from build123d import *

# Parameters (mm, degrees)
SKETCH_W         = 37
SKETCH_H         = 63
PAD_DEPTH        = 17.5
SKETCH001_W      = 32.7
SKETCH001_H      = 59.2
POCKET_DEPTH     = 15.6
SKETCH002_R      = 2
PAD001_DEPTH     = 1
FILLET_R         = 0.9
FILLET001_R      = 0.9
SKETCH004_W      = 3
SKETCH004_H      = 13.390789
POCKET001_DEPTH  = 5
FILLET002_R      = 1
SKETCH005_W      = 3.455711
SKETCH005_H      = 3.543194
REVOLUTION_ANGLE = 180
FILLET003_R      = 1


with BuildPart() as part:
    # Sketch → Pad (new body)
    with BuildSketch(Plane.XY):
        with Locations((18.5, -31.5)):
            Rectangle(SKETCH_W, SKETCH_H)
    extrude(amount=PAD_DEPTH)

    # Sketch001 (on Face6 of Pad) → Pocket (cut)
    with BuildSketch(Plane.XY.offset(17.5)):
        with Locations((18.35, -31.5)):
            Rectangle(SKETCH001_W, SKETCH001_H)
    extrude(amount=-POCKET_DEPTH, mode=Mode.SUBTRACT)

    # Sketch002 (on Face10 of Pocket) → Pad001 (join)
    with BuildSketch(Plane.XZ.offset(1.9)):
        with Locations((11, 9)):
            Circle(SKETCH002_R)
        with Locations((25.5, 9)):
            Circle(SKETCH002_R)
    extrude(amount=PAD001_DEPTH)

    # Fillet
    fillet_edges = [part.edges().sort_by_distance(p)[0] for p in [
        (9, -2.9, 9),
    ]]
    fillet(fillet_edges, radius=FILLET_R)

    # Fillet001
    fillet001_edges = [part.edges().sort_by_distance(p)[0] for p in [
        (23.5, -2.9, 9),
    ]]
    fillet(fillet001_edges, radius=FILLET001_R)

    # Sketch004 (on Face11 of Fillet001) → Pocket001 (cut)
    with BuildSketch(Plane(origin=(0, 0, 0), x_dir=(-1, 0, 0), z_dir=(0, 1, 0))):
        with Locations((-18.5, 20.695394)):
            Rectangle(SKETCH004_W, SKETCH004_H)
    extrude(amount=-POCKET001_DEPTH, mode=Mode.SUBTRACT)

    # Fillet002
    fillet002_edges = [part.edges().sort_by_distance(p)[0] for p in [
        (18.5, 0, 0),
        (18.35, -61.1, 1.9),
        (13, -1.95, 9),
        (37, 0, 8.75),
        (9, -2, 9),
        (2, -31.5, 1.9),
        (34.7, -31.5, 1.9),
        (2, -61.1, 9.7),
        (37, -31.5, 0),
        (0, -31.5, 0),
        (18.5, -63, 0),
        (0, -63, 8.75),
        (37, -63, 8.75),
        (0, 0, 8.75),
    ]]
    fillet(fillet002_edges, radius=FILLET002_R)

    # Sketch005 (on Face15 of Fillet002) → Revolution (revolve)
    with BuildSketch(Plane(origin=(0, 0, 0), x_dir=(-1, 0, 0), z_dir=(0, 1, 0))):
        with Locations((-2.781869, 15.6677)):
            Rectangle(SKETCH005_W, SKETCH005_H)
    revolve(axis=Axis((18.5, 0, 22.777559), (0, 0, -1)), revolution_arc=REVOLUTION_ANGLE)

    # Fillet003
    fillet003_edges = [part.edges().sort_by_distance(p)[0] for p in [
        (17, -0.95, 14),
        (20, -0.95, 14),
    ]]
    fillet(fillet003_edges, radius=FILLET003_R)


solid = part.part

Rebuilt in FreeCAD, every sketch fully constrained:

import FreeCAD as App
import Part
import Sketcher
Q = App.Units.Quantity


def edges_at(feature, points):
    """Names of the edges that pass closest to the given points."""
    edges = feature.Shape.Edges
    near = lambda p: min(range(len(edges)), key=lambda i: edges[i].distToShape(Part.Vertex(*p))[0])
    return sorted({f"Edge{near(p) + 1}" for p in points})

doc = App.newDocument("Part")
body = doc.addObject("PartDesign::Body", "Body")

# Sketch on XY plane
sketch1 = body.newObject("Sketcher::SketchObject", "Sketch")
sketch1.AttachmentSupport = (doc.getObject("XY_Plane"), [""])
sketch1.MapMode = "FlatFace"
sketch1.addGeometry([
    Part.LineSegment(App.Vector(0, 0, 0), App.Vector(0, -63, 0)),
    Part.LineSegment(App.Vector(0, -63, 0), App.Vector(37, -63, 0)),
    Part.LineSegment(App.Vector(37, -63, 0), App.Vector(37, 0, 0)),
    Part.LineSegment(App.Vector(37, 0, 0), App.Vector(0, 0, 0)),
], False)
sketch1.addConstraint([
    Sketcher.Constraint("Coincident", 0, 2, 1, 1),
    Sketcher.Constraint("Coincident", 1, 2, 2, 1),
    Sketcher.Constraint("Coincident", 2, 2, 3, 1),
    Sketcher.Constraint("Coincident", 3, 2, 0, 1),
    Sketcher.Constraint("Vertical", 0),
    Sketcher.Constraint("Horizontal", 1),
    Sketcher.Constraint("Vertical", 2),
    Sketcher.Constraint("Horizontal", 3),
    Sketcher.Constraint("Coincident", 3, 2, -1, 1),
    Sketcher.Constraint("DistanceX", 1, 1, 1, 2, Q("37 mm")),
    Sketcher.Constraint("DistanceY", 0, 2, 0, 1, Q("63 mm")),
])
pad1 = body.newObject("PartDesign::Pad", "Pad")
pad1.Profile = sketch1
pad1.Length = 17.5

# Sketch on XY plane
sketch2 = body.newObject("Sketcher::SketchObject", "Sketch001")
sketch2.AttachmentSupport = (doc.getObject("XY_Plane"), [""])
sketch2.MapMode = "FlatFace"
sketch2.AttachmentOffset = App.Placement(App.Vector(0, 0, 17.5), App.Rotation())
sketch2.addGeometry([
    Part.LineSegment(App.Vector(2, -1.9, 0), App.Vector(2, -61.1, 0)),
    Part.LineSegment(App.Vector(2, -61.1, 0), App.Vector(34.7, -61.1, 0)),
    Part.LineSegment(App.Vector(34.7, -61.1, 0), App.Vector(34.7, -1.9, 0)),
    Part.LineSegment(App.Vector(34.7, -1.9, 0), App.Vector(2, -1.9, 0)),
], False)
sketch2.addConstraint([
    Sketcher.Constraint("Coincident", 0, 2, 1, 1),
    Sketcher.Constraint("Coincident", 1, 2, 2, 1),
    Sketcher.Constraint("Coincident", 2, 2, 3, 1),
    Sketcher.Constraint("Coincident", 3, 2, 0, 1),
    Sketcher.Constraint("Vertical", 0),
    Sketcher.Constraint("Horizontal", 1),
    Sketcher.Constraint("Vertical", 2),
    Sketcher.Constraint("Horizontal", 3),
    Sketcher.Constraint("DistanceX", 1, 1, 1, 2, Q("32.7 mm")),
    Sketcher.Constraint("DistanceY", 0, 2, 0, 1, Q("59.2 mm")),
    Sketcher.Constraint("DistanceX", -1, 1, 0, 2, Q("2 mm")),
    Sketcher.Constraint("DistanceY", 0, 2, -1, 1, Q("61.1 mm")),
])
pocket1 = body.newObject("PartDesign::Pocket", "Pocket")
pocket1.Profile = sketch2
pocket1.Length = 15.6

# Sketch on XZ plane
sketch3 = body.newObject("Sketcher::SketchObject", "Sketch002")
sketch3.AttachmentSupport = (doc.getObject("XZ_Plane"), [""])
sketch3.MapMode = "FlatFace"
sketch3.AttachmentOffset = App.Placement(App.Vector(0, 0, 1.9), App.Rotation())
sketch3.addGeometry([
    Part.Circle(App.Vector(11, 9, 0), App.Vector(0, 0, 1), 2),
    Part.Circle(App.Vector(25.5, 9, 0), App.Vector(0, 0, 1), 2),
], False)
sketch3.addConstraint([
    Sketcher.Constraint("Equal", 0, 1),
    Sketcher.Constraint("Horizontal", 0, 3, 1, 3),
    Sketcher.Constraint("Diameter", 0, Q("4 mm")),
    Sketcher.Constraint("DistanceX", -1, 1, 0, 3, Q("11 mm")),
    Sketcher.Constraint("DistanceY", -1, 1, 0, 3, Q("9 mm")),
    Sketcher.Constraint("DistanceX", -1, 1, 1, 3, Q("25.5 mm")),
])
pad2 = body.newObject("PartDesign::Pad", "Pad001")
pad2.Profile = sketch3
pad2.Length = 1
doc.recompute()

fillet = body.newObject("PartDesign::Fillet", "Fillet")
fillet.Base = (pad2, edges_at(pad2, [(9, -2.9, 9)]))
fillet.Radius = 0.9
doc.recompute()

fillet2 = body.newObject("PartDesign::Fillet", "Fillet001")
fillet2.Base = (fillet, edges_at(fillet, [(23.5, -2.9, 9)]))
fillet2.Radius = 0.9

# Sketch on XZ plane
sketch4 = body.newObject("Sketcher::SketchObject", "Sketch003")
sketch4.AttachmentSupport = (doc.getObject("XZ_Plane"), [""])
sketch4.MapMode = "FlatFace"
sketch4.addGeometry([
    Part.LineSegment(App.Vector(20, 27.390788, 0), App.Vector(20, 13.999999, 0)),
    Part.LineSegment(App.Vector(20, 13.999999, 0), App.Vector(17, 13.999999, 0)),
    Part.LineSegment(App.Vector(17, 13.999999, 0), App.Vector(17, 27.390788, 0)),
    Part.LineSegment(App.Vector(17, 27.390788, 0), App.Vector(20, 27.390788, 0)),
], False)
sketch4.addConstraint([
    Sketcher.Constraint("Coincident", 0, 2, 1, 1),
    Sketcher.Constraint("Coincident", 1, 2, 2, 1),
    Sketcher.Constraint("Coincident", 2, 2, 3, 1),
    Sketcher.Constraint("Coincident", 3, 2, 0, 1),
    Sketcher.Constraint("Vertical", 0),
    Sketcher.Constraint("Horizontal", 1),
    Sketcher.Constraint("Vertical", 2),
    Sketcher.Constraint("Horizontal", 3),
    Sketcher.Constraint("DistanceX", 1, 2, 1, 1, Q("3 mm")),
    Sketcher.Constraint("DistanceX", -1, 1, 0, 2, Q("20 mm")),
    Sketcher.Constraint("DistanceY", -1, 1, 0, 2, Q("13.999999 mm")),
    Sketcher.Constraint("DistanceY", 0, 2, 0, 1, Q("13.390789 mm")),
])
pocket2 = body.newObject("PartDesign::Pocket", "Pocket001")
pocket2.Profile = sketch4
pocket2.Length = 5
pocket2.Reversed = True
doc.recompute()

fillet3 = body.newObject("PartDesign::Fillet", "Fillet002")
fillet3.Base = (pocket2, edges_at(pocket2, [
    (18.5, 0, 0),
    (18.35, -61.1, 1.9),
    (13, -1.95, 9),
    (37, 0, 8.75),
    (9, -2, 9),
    (2, -31.5, 1.9),
    (34.7, -31.5, 1.9),
    (2, -61.1, 9.7),
    (37, -31.5, 0),
    (0, -31.5, 0),
    (18.5, -63, 0),
    (0, -63, 8.75),
    (37, -63, 8.75),
    (0, 0, 8.75),
]))
fillet3.Radius = 1

# Sketch on XZ plane
sketch5 = body.newObject("Sketcher::SketchObject", "Sketch004")
sketch5.AttachmentSupport = (doc.getObject("XZ_Plane"), [""])
sketch5.MapMode = "FlatFace"
sketch5.addGeometry([
    Part.LineSegment(App.Vector(4.509724, 17.439297, 0), App.Vector(4.509724, 13.896103, 0)),
    Part.LineSegment(App.Vector(4.509724, 13.896103, 0), App.Vector(1.054013, 13.896103, 0)),
    Part.LineSegment(App.Vector(1.054013, 13.896103, 0), App.Vector(1.054013, 17.439297, 0)),
    Part.LineSegment(App.Vector(1.054013, 17.439297, 0), App.Vector(4.509724, 17.439297, 0)),
], False)
sketch5.addGeometry(Part.LineSegment(App.Vector(18.5, 17.439297, 0), App.Vector(18.5, 13.896103, 0)), True)  # axis
sketch5.addConstraint([
    Sketcher.Constraint("Coincident", 0, 2, 1, 1),
    Sketcher.Constraint("Coincident", 1, 2, 2, 1),
    Sketcher.Constraint("Coincident", 2, 2, 3, 1),
    Sketcher.Constraint("Coincident", 3, 2, 0, 1),
    Sketcher.Constraint("Vertical", 0),
    Sketcher.Constraint("Horizontal", 1),
    Sketcher.Constraint("Vertical", 2),
    Sketcher.Constraint("Horizontal", 3),
    Sketcher.Constraint("Vertical", 4),
    Sketcher.Constraint("Horizontal", 3, 2, 4, 1),
    Sketcher.Constraint("Horizontal", 1, 2, 4, 2),
    Sketcher.Constraint("DistanceX", -1, 1, 4, 1, Q("18.5 mm")),
    Sketcher.Constraint("DistanceX", 1, 2, 1, 1, Q("3.455711 mm")),
    Sketcher.Constraint("DistanceY", 0, 2, 0, 1, Q("3.543194 mm")),
    Sketcher.Constraint("DistanceX", -1, 1, 0, 2, Q("4.509724 mm")),
    Sketcher.Constraint("DistanceY", -1, 1, 0, 2, Q("13.896103 mm")),
])
revolution = body.newObject("PartDesign::Revolution", "Revolution")
revolution.Profile = sketch5
revolution.ReferenceAxis = (sketch5, ["Axis0"])
revolution.Angle = 180
doc.recompute()

fillet4 = body.newObject("PartDesign::Fillet", "Fillet003")
fillet4.Base = (revolution, edges_at(revolution, [(17, -0.95, 14), (20, -0.95, 14)]))
fillet4.Radius = 1

doc.recompute()
